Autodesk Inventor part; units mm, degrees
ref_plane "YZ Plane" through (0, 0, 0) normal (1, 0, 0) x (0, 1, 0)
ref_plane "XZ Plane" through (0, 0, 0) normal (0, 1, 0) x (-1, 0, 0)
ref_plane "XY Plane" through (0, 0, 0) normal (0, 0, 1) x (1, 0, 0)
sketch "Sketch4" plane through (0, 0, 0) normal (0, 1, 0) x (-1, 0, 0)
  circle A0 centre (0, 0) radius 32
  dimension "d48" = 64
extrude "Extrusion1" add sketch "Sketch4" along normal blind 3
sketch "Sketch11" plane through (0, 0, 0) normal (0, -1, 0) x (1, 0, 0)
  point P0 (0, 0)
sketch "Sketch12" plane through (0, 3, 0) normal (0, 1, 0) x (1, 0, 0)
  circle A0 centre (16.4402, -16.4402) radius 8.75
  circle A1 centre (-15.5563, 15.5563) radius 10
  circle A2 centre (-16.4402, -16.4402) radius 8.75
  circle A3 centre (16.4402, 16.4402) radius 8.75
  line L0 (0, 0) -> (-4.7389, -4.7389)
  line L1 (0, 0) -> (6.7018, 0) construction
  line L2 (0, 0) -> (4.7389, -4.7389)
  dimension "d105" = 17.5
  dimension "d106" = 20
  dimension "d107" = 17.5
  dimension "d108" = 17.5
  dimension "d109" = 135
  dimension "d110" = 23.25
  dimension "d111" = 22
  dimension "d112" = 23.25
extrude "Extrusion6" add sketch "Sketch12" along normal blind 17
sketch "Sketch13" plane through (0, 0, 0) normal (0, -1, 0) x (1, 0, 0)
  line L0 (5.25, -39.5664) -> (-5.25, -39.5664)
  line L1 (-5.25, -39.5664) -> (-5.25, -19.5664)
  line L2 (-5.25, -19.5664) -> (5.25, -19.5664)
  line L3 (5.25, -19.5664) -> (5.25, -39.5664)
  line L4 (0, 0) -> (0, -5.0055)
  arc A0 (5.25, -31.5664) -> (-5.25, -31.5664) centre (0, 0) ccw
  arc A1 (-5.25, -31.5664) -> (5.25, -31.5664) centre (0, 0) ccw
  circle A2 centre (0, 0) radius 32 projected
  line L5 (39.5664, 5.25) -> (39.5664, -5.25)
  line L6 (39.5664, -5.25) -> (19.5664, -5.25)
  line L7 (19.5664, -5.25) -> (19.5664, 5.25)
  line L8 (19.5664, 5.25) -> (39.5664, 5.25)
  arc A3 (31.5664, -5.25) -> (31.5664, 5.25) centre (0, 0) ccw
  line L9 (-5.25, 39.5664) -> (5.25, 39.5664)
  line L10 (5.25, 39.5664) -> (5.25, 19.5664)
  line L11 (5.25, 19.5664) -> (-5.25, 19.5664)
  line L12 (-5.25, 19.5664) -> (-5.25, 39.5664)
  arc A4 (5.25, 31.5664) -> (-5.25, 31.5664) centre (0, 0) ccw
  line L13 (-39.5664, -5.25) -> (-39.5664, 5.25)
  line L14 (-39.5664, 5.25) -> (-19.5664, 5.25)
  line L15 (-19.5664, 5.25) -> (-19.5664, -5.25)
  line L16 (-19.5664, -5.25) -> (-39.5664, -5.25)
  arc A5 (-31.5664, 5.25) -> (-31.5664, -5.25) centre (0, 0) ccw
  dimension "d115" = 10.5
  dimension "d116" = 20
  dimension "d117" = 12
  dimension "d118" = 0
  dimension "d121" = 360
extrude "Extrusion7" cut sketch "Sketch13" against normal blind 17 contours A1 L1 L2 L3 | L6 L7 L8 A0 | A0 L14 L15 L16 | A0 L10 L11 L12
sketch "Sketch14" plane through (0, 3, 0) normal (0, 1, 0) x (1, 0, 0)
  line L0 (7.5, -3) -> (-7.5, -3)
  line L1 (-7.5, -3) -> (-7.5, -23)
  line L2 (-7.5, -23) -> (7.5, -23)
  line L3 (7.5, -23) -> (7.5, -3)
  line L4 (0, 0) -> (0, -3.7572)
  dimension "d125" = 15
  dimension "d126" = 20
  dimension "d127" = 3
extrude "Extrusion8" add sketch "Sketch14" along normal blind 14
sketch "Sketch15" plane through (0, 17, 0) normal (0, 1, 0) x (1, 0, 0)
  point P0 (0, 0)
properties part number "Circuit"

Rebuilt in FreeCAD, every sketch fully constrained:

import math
import FreeCAD as App
import Part
import Sketcher


def add_polygon(sketch, points):
    """Adds a closed chain of lines whose ends are joined by coincident constraints."""
    first, n = sketch.GeometryCount, len(points)
    for a, b in zip(points, points[1:] + points[:1]):
        sketch.addGeometry(Part.LineSegment(App.Vector(*a, 0), App.Vector(*b, 0)), False)
    for i in range(n):
        sketch.addConstraint(Sketcher.Constraint("Coincident", first + i, 2, first + (i + 1) % n, 1))

doc = App.newDocument("Part")
body = doc.addObject("PartDesign::Body", "Body")

# Sketch on XZ plane
sketch1 = body.newObject("Sketcher::SketchObject", "Sketch")
sketch1.AttachmentSupport = (doc.getObject("XZ_Plane"), [""])
sketch1.MapMode = "FlatFace"
sketch1.addGeometry(Part.Circle(App.Vector(0, 0, 0), App.Vector(0, 0, 1), 32), False)
sketch1.addConstraint([
    Sketcher.Constraint("Coincident", 0, 3, -1, 1),
    Sketcher.Constraint("Diameter", 0, 64.0),
])
pad1 = body.newObject("PartDesign::Pad", "Pad")
pad1.Profile = sketch1
pad1.Length = 3
pad1.Reversed = True

# Sketch on XZ plane
sketch2 = body.newObject("Sketcher::SketchObject", "Sketch001")
sketch2.AttachmentSupport = (doc.getObject("XZ_Plane"), [""])
sketch2.MapMode = "FlatFace"
sketch2.AttachmentOffset = App.Placement(App.Vector(0, 0, -3), App.Rotation())
sketch2.addGeometry([
    Part.Circle(App.Vector(16, 16, 0), App.Vector(0, 0, 1), 9),
    Part.Circle(App.Vector(-16, -16, 0), App.Vector(0, 0, 1), 10),
    Part.Circle(App.Vector(-16, 16, 0), App.Vector(0, 0, 1), 9),
    Part.Circle(App.Vector(16, -16, 0), App.Vector(0, 0, 1), 9),
], False)
sketch2.addConstraint([
    Sketcher.Constraint("Equal", 0, 2),
    Sketcher.Constraint("Equal", 2, 3),
    Sketcher.Constraint("Symmetric", 2, 3, 3, 3, -1, 1),
    Sketcher.Constraint("Symmetric", 0, 3, 2, 3, -2),
    Sketcher.Constraint("Diameter", 1, 20.0),
    Sketcher.Constraint("Diameter", 0, 17.5),
    Sketcher.Constraint("DistanceX", 2, 3, 1, 3, 0.884),
    Sketcher.Constraint("DistanceY", 3, 3, 1, 3, 0.884),
    Sketcher.Constraint("DistanceX", -1, 1, 0, 3, 16.4402),
    Sketcher.Constraint("DistanceY", -1, 1, 0, 3, 16.4402),
])
pad2 = body.newObject("PartDesign::Pad", "Pad001")
pad2.Profile = sketch2
pad2.Length = 17
pad2.Reversed = True

# Sketch on XZ plane
sketch3 = body.newObject("Sketcher::SketchObject", "Sketch002")
sketch3.AttachmentSupport = (doc.getObject("XZ_Plane"), [""])
sketch3.MapMode = "FlatFace"
sketch3.addGeometry([
    Part.ArcOfCircle(Part.Circle(App.Vector(0, 0, 0), App.Vector(0, 0, 1), 32), math.radians(-99.44), math.radians(-80.56)),  # 0
    Part.LineSegment(App.Vector(5, -32, 0), App.Vector(5, -20, 0)),  # 1
    Part.LineSegment(App.Vector(5, -20, 0), App.Vector(-5, -20, 0)),  # 2
    Part.LineSegment(App.Vector(-5, -20, 0), App.Vector(-5, -32, 0)),  # 3
    Part.LineSegment(App.Vector(20, -5, 0), App.Vector(32, -5, 0)),  # 4
    Part.ArcOfCircle(Part.Circle(App.Vector(0, 0, 0), App.Vector(0, 0, 1), 32), math.radians(-9.44), math.radians(9.44)),  # 5
    Part.LineSegment(App.Vector(32, 5, 0), App.Vector(20, 5, 0)),  # 6
    Part.LineSegment(App.Vector(20, 5, 0), App.Vector(20, -5, 0)),  # 7
    Part.ArcOfCircle(Part.Circle(App.Vector(0, 0, 0), App.Vector(0, 0, 1), 32), math.radians(170.56), math.radians(189.44)),  # 8
    Part.LineSegment(App.Vector(-32, -5, 0), App.Vector(-20, -5, 0)),  # 9
    Part.LineSegment(App.Vector(-20, -5, 0), App.Vector(-20, 5, 0)),  # 10
    Part.LineSegment(App.Vector(-20, 5, 0), App.Vector(-32, 5, 0)),  # 11
    Part.ArcOfCircle(Part.Circle(App.Vector(0, 0, 0), App.Vector(0, 0, 1), 32), math.radians(80.56), math.radians(99.44)),  # 12
    Part.LineSegment(App.Vector(-5, 32, 0), App.Vector(-5, 20, 0)),  # 13
    Part.LineSegment(App.Vector(-5, 20, 0), App.Vector(5, 20, 0)),  # 14
    Part.LineSegment(App.Vector(5, 20, 0), App.Vector(5, 32, 0)),  # 15
], False)
sketch3.addConstraint([
    Sketcher.Constraint("Coincident", 0, 2, 1, 1),
    Sketcher.Constraint("Coincident", 1, 2, 2, 1),
    Sketcher.Constraint("Coincident", 2, 2, 3, 1),
    Sketcher.Constraint("Coincident", 3, 2, 0, 1),
    Sketcher.Constraint("Coincident", 4, 2, 5, 1),
    Sketcher.Constraint("Coincident", 5, 2, 6, 1),
    Sketcher.Constraint("Coincident", 6, 2, 7, 1),
    Sketcher.Constraint("Coincident", 7, 2, 4, 1),
    Sketcher.Constraint("Coincident", 8, 2, 9, 1),
    Sketcher.Constraint("Coincident", 9, 2, 10, 1),
    Sketcher.Constraint("Coincident", 10, 2, 11, 1),
    Sketcher.Constraint("Coincident", 11, 2, 8, 1),
    Sketcher.Constraint("Coincident", 12, 2, 13, 1),
    Sketcher.Constraint("Coincident", 13, 2, 14, 1),
    Sketcher.Constraint("Coincident", 14, 2, 15, 1),
    Sketcher.Constraint("Coincident", 15, 2, 12, 1),
    Sketcher.Constraint("Vertical", 1),
    Sketcher.Constraint("Horizontal", 2),
    Sketcher.Constraint("Vertical", 3),
    Sketcher.Constraint("Horizontal", 4),
    Sketcher.Constraint("Horizontal", 6),
    Sketcher.Constraint("Vertical", 7),
    Sketcher.Constraint("Horizontal", 9),
    Sketcher.Constraint("Vertical", 10),
    Sketcher.Constraint("Horizontal", 11),
    Sketcher.Constraint("Vertical", 13),
    Sketcher.Constraint("Horizontal", 14),
    Sketcher.Constraint("Vertical", 15),
    Sketcher.Constraint("Coincident", 0, 3, -1, 1),
    Sketcher.Constraint("Coincident", 5, 3, -1, 1),
    Sketcher.Constraint("Coincident", 8, 3, -1, 1),
    Sketcher.Constraint("Coincident", 12, 3, -1, 1),
    Sketcher.Constraint("Equal", 0, 5),
    Sketcher.Constraint("Equal", 5, 8),
    Sketcher.Constraint("Equal", 8, 12),
    Sketcher.Constraint("Symmetric", 6, 2, 9, 2, -1, 1),
    Sketcher.Constraint("Symmetric", 1, 2, 13, 2, -1, 1),
    Sketcher.Constraint("Horizontal", 0, 2, 3, 2),
    Sketcher.Constraint("Horizontal", 7, 2, 8, 2),
    Sketcher.Constraint("Horizontal", 6, 2, 10, 2),
    Sketcher.Constraint("Horizontal", 12, 2, 15, 2),
    Sketcher.Constraint("Equal", 11, 1),
    Sketcher.Constraint("Equal", 14, 7),
    Sketcher.Constraint("DistanceX", 4, 1, 4, 2, 12.0),
    Sketcher.Constraint("DistanceX", 2, 2, 2, 1, 10.5),
    Sketcher.Constraint("Radius", 0, 32.0),
])
pocket1 = body.newObject("PartDesign::Pocket", "Pocket")
pocket1.Profile = sketch3
pocket1.Length = 17

# Sketch on XZ plane
sketch4 = body.newObject("Sketcher::SketchObject", "Sketch003")
sketch4.AttachmentSupport = (doc.getObject("XZ_Plane"), [""])
sketch4.MapMode = "FlatFace"
sketch4.AttachmentOffset = App.Placement(App.Vector(0, 0, -3), App.Rotation())
add_polygon(sketch4, [(8, 23), (8, 3), (-8, 3), (-8, 23)])  # lines 0-3
sketch4.addConstraint([
    Sketcher.Constraint("Vertical", 0),
    Sketcher.Constraint("Horizontal", 1),
    Sketcher.Constraint("Vertical", 2),
    Sketcher.Constraint("Horizontal", 3),
    Sketcher.Constraint("DistanceX", 1, 2, 1, 1, 15.0),
    Sketcher.Constraint("DistanceY", 0, 2, 0, 1, 20.0),
    Sketcher.Constraint("DistanceY", -1, 1, 0, 2, 3.0),
    Sketcher.Constraint("DistanceX", -1, 1, 0, 2, 7.5),
])
pad3 = body.newObject("PartDesign::Pad", "Pad002")
pad3.Profile = sketch4
pad3.Length = 14
pad3.Reversed = True

doc.recompute()
